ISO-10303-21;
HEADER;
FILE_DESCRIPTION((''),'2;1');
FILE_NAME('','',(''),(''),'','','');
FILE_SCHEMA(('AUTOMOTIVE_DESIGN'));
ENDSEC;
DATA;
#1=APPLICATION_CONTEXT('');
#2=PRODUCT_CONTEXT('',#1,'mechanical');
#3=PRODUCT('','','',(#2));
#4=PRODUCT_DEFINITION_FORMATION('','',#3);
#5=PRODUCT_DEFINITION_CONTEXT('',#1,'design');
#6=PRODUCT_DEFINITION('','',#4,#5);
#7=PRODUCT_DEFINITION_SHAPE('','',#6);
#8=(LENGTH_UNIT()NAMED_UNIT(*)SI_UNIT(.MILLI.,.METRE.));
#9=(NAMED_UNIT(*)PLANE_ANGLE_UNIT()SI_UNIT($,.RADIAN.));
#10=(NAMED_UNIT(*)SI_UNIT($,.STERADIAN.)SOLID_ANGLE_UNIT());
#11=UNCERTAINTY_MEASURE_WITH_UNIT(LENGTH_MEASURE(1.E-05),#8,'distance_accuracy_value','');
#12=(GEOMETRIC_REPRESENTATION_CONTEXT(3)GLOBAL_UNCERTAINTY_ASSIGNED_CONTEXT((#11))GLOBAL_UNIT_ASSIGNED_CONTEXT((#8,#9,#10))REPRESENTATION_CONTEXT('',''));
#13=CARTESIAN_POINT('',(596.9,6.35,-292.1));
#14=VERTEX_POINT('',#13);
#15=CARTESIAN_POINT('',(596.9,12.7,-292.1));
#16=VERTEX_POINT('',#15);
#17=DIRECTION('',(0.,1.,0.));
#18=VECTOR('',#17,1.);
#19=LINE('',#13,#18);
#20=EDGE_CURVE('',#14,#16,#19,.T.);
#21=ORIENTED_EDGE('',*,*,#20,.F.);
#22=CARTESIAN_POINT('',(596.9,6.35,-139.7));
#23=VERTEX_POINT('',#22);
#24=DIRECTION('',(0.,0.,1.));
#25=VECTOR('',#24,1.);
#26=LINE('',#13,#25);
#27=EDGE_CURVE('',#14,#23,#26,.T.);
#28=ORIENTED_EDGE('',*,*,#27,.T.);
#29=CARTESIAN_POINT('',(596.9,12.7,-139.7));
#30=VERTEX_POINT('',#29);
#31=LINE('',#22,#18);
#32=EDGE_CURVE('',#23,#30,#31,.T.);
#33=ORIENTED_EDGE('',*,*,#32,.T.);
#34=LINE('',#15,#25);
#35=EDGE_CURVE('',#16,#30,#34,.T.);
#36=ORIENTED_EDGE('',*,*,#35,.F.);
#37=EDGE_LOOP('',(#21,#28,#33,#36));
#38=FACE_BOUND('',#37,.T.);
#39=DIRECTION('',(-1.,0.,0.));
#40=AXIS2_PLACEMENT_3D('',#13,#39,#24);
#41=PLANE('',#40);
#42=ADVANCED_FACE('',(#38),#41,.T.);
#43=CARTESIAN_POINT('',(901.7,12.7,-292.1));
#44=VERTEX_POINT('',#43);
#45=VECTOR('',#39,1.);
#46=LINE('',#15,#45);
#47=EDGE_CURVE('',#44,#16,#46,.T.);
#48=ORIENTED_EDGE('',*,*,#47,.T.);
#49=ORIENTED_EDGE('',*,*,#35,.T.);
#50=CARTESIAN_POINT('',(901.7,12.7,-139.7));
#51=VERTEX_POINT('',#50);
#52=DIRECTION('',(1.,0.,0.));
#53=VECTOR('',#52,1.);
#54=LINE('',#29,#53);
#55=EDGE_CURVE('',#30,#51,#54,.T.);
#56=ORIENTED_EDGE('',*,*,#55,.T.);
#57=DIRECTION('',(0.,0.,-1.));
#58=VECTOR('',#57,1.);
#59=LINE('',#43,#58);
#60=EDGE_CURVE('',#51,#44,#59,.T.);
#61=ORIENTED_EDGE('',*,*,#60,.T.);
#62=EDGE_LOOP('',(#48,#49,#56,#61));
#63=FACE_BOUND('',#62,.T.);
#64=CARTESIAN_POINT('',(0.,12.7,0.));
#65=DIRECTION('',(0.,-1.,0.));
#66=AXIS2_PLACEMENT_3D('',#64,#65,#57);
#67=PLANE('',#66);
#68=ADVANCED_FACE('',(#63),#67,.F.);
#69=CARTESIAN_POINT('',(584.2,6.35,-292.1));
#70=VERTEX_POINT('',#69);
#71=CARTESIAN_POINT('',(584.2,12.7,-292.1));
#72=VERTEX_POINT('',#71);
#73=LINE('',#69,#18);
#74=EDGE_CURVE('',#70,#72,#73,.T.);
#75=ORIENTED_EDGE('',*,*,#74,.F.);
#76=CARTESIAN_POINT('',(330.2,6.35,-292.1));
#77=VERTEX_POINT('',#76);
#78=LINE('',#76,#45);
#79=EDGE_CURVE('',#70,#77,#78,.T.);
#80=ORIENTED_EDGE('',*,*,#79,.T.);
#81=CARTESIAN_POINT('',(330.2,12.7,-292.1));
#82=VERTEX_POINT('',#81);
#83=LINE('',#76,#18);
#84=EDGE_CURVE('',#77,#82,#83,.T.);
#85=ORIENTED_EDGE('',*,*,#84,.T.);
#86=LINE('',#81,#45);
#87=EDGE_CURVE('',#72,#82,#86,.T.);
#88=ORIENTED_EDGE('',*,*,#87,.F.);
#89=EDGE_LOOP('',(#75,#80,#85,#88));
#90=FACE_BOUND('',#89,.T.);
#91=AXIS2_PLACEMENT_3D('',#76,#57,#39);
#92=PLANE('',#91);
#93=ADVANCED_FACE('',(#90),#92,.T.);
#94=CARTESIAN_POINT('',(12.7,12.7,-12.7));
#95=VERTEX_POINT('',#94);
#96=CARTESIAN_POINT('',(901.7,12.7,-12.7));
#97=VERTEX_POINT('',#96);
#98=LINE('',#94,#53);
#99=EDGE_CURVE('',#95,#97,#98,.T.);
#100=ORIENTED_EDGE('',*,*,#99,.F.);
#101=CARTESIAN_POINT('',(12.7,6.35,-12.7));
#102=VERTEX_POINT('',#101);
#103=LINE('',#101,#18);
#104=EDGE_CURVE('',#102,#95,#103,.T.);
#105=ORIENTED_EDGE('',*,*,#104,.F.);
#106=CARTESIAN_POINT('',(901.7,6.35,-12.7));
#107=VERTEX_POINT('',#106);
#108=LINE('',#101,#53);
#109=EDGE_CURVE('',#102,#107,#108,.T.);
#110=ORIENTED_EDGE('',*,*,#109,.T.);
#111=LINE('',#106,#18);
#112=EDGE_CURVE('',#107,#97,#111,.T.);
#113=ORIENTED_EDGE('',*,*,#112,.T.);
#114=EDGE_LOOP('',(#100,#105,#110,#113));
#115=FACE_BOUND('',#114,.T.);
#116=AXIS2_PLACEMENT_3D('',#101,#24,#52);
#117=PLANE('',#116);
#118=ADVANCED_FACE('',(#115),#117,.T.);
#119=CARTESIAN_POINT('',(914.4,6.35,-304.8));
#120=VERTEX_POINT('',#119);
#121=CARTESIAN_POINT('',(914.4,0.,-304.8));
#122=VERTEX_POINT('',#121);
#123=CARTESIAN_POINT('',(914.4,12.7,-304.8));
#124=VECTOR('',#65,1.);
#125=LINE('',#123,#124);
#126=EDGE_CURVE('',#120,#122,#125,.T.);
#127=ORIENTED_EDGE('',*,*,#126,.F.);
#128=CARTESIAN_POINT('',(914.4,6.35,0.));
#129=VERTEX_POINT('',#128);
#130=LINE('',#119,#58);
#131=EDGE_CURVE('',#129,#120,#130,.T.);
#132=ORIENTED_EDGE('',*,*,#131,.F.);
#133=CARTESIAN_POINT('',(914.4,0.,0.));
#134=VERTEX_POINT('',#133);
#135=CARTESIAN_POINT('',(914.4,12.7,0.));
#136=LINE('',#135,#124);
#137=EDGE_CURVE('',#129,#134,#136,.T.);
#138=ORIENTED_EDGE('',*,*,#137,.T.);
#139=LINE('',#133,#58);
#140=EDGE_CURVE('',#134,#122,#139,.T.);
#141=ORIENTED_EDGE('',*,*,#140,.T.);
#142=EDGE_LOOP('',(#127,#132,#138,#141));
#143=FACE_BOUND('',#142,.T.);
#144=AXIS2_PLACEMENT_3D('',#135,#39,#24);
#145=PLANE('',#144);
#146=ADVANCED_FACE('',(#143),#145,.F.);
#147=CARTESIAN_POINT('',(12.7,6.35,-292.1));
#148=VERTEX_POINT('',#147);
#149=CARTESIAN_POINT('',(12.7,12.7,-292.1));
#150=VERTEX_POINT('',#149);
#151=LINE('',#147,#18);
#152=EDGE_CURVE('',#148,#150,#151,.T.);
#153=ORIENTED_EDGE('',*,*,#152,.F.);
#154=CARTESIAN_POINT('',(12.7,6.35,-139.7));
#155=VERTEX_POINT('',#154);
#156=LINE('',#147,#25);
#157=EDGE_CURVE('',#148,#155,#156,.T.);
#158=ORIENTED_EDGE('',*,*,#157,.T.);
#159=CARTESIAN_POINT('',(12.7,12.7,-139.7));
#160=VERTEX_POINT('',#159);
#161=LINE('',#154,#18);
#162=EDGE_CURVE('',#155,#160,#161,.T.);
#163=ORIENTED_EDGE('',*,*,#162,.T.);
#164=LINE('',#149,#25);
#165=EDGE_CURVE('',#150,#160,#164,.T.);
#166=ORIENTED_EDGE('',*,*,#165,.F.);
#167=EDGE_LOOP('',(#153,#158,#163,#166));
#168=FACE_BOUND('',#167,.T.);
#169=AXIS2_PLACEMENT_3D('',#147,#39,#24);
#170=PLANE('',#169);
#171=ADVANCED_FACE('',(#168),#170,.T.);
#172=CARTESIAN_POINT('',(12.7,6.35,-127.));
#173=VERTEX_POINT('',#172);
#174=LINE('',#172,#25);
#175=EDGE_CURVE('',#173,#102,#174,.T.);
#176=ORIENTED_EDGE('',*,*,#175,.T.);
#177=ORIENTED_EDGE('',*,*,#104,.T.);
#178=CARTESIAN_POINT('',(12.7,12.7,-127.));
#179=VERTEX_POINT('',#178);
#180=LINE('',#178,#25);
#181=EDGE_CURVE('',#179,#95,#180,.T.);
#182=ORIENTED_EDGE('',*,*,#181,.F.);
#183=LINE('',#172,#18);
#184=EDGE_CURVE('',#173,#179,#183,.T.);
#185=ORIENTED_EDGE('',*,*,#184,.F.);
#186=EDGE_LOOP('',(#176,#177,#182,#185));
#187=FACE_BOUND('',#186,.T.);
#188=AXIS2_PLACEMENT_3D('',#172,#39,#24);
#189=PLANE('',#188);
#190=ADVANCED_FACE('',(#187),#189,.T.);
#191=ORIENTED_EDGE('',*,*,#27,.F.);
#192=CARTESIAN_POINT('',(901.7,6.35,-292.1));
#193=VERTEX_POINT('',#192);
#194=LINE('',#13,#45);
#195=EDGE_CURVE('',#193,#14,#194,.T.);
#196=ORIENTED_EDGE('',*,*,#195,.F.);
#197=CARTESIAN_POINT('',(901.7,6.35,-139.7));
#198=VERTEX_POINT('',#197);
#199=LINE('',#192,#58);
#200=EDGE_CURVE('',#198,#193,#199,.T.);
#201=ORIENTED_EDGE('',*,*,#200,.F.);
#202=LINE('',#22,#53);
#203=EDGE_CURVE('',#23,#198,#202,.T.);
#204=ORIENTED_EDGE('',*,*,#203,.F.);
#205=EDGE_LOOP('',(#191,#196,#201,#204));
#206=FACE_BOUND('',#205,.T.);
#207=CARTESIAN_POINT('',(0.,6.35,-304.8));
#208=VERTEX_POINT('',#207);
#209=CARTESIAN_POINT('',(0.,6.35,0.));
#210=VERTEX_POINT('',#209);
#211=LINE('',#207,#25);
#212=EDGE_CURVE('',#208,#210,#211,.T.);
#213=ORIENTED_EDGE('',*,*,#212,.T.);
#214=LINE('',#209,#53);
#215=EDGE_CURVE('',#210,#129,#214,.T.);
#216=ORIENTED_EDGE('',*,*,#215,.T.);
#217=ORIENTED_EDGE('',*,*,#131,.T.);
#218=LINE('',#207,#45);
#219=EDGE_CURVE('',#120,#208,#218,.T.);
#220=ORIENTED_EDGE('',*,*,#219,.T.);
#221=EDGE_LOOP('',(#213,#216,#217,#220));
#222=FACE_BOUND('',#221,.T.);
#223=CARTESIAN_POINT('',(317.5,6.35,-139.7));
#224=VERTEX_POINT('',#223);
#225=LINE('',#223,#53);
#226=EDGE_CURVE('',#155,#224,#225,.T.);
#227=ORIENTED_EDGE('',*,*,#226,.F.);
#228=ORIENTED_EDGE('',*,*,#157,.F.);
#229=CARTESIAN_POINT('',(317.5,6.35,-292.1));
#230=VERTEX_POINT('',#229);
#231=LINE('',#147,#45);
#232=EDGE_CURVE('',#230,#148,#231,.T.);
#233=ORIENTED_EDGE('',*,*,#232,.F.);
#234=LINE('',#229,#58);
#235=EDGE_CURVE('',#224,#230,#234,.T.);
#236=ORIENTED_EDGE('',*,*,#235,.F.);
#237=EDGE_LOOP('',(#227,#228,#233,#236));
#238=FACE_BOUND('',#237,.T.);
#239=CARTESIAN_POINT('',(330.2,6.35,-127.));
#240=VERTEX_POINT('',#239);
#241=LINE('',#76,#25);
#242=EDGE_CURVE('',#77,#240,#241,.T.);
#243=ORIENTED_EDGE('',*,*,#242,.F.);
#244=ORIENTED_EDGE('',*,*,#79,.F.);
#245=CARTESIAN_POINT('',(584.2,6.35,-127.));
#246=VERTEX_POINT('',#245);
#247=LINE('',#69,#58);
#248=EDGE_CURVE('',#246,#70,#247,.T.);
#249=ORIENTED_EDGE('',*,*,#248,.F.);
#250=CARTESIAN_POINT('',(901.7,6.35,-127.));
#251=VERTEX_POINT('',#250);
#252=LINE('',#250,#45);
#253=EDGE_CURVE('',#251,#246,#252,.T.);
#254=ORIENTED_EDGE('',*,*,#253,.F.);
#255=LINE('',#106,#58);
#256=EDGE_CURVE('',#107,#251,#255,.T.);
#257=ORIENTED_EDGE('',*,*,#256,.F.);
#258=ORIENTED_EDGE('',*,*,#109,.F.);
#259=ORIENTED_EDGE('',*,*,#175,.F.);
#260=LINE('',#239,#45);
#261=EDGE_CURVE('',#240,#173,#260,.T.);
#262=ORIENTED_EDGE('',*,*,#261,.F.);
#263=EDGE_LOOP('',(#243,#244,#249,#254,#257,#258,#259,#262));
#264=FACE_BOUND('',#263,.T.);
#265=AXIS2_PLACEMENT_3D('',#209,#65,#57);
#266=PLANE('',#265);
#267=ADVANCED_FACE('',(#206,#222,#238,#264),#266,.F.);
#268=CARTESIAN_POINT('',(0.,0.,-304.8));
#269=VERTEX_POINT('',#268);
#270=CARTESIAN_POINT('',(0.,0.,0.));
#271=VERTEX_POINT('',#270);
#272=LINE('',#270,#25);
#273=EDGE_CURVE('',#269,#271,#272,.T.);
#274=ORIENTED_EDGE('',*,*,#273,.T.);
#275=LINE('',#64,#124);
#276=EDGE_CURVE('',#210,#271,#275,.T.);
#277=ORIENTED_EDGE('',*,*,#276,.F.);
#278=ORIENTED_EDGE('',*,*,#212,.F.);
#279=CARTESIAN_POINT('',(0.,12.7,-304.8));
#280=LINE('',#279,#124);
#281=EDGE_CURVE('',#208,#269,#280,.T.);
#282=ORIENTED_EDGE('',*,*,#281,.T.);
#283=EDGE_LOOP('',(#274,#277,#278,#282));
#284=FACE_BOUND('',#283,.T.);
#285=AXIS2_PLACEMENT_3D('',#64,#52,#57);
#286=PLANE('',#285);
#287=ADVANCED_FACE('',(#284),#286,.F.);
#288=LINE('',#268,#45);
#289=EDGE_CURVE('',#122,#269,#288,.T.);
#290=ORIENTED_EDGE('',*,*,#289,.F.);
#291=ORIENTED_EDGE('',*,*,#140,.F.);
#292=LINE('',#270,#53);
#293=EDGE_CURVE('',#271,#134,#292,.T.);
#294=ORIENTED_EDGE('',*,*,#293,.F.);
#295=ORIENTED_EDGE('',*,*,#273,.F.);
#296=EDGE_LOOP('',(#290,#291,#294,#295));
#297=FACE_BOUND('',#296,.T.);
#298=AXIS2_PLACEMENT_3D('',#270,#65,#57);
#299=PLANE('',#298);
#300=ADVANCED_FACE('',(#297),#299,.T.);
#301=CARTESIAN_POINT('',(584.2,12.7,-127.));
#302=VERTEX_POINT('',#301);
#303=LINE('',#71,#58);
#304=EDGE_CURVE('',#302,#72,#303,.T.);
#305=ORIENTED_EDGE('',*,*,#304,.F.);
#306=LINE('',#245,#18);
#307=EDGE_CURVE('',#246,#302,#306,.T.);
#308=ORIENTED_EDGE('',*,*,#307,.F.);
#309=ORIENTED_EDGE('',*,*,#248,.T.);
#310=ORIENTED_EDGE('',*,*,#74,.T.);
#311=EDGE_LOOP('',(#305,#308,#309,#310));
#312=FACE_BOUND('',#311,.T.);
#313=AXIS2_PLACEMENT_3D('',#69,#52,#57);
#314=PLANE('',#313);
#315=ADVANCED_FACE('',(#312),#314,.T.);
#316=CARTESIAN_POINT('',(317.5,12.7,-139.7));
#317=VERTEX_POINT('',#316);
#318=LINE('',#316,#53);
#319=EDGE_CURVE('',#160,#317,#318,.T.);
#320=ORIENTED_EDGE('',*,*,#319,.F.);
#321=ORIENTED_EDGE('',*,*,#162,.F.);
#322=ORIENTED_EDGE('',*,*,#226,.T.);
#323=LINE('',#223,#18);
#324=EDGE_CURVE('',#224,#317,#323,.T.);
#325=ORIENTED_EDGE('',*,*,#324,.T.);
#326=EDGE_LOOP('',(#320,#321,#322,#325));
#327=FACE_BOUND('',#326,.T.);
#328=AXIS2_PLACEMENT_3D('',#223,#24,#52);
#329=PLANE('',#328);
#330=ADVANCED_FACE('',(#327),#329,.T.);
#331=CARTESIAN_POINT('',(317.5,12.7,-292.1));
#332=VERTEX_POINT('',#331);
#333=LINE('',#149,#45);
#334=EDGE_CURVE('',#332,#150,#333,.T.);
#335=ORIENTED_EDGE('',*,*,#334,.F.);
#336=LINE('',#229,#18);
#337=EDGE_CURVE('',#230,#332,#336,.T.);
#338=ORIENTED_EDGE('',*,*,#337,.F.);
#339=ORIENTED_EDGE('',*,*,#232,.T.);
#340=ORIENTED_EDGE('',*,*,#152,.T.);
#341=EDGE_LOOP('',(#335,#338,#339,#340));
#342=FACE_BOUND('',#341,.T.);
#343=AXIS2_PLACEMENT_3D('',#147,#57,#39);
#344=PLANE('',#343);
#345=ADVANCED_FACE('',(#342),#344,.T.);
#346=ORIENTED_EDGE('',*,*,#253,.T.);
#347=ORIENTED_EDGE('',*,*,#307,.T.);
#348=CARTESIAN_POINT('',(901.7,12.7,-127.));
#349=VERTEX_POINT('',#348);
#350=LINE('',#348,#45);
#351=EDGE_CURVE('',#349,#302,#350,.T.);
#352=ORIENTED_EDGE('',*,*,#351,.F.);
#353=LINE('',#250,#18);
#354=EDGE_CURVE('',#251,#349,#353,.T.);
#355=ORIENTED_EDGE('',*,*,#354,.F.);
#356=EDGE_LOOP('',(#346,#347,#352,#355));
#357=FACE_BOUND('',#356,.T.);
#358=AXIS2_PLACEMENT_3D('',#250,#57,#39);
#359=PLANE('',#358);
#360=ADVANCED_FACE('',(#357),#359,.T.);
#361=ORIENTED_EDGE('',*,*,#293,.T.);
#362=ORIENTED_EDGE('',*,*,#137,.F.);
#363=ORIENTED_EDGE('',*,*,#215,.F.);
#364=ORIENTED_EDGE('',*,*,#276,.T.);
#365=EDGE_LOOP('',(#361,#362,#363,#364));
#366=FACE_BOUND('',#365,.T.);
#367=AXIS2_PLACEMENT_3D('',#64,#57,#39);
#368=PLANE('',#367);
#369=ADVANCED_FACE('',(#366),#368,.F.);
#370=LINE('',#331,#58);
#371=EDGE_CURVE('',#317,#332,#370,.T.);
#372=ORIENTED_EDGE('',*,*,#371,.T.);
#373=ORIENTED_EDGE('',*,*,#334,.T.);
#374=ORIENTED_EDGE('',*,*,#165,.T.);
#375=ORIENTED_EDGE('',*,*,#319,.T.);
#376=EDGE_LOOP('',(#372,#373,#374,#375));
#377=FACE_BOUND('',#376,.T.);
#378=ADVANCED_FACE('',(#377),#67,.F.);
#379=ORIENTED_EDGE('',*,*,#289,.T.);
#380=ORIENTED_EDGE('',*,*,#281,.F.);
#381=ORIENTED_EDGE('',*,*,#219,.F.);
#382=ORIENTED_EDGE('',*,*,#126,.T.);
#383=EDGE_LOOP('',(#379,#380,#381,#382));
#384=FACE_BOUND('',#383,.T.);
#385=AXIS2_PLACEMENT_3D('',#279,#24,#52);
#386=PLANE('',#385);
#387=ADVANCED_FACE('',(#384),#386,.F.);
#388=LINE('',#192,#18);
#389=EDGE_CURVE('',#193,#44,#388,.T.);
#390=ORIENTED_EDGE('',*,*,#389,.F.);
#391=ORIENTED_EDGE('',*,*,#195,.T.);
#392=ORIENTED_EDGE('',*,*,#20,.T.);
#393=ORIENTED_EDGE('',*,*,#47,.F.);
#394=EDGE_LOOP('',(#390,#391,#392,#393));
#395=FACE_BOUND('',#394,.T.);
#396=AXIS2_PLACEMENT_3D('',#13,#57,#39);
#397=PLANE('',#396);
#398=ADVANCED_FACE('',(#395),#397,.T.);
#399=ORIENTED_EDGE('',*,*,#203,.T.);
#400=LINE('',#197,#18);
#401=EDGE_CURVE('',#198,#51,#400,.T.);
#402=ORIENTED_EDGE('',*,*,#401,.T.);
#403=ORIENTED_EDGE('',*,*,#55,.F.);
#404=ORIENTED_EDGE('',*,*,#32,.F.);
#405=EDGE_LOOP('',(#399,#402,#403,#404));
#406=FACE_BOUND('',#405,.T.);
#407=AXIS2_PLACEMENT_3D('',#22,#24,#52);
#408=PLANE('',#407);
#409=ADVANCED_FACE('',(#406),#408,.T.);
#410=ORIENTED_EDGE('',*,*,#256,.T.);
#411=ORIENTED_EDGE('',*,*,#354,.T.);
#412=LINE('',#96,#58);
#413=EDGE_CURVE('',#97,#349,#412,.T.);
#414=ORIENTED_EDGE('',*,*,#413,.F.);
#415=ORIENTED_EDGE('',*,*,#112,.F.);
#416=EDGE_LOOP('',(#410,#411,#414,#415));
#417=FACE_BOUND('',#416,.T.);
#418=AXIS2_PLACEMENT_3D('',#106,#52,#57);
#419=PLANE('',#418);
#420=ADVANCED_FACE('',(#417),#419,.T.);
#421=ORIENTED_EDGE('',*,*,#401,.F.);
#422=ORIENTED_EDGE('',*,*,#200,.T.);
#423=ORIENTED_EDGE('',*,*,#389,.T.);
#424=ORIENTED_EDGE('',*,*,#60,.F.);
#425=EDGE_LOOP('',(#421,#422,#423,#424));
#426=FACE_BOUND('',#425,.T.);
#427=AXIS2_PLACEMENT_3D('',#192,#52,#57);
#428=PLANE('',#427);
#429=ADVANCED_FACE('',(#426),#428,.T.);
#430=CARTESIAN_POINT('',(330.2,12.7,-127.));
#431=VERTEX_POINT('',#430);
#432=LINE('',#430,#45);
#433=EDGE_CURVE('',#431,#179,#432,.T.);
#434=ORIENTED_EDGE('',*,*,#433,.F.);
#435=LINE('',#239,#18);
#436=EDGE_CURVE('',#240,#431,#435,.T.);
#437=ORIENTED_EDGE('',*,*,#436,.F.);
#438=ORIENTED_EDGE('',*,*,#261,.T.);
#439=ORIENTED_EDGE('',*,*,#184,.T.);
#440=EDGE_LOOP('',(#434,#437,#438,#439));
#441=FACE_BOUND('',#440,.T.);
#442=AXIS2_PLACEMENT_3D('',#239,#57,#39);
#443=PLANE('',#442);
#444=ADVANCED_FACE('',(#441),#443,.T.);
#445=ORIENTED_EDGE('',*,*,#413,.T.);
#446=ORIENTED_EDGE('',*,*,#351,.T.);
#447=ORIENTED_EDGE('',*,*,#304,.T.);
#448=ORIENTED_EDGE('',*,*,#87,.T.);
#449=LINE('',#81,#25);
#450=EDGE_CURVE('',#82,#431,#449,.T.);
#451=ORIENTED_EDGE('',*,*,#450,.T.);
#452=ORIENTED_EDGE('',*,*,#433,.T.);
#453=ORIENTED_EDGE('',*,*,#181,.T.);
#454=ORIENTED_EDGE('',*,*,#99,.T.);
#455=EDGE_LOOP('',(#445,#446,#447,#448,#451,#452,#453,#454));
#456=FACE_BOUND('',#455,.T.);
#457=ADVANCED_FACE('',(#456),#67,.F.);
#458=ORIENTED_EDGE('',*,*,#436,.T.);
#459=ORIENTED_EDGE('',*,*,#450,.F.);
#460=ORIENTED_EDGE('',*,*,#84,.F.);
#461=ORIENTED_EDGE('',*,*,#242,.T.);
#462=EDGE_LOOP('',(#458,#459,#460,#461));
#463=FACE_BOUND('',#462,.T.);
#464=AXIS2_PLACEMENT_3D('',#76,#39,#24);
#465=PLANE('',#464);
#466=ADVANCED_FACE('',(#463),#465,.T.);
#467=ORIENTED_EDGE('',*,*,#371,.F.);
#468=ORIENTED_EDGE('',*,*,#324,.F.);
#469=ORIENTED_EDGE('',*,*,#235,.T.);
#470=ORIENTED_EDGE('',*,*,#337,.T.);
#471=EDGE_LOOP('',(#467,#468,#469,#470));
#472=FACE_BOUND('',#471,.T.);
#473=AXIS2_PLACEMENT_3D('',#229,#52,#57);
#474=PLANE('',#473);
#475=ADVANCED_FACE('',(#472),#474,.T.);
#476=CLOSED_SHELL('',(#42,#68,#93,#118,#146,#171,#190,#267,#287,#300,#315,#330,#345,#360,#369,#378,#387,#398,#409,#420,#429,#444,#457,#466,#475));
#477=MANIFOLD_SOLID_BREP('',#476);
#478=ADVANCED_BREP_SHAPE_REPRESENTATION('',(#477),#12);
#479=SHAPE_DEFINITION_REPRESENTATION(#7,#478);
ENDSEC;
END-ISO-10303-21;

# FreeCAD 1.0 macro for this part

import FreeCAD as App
import Part
import Sketcher

V = App.Vector
Q = App.Units.Quantity


def add_polygon(sketch, points):
    """Adds a closed chain of lines whose ends are joined by coincident constraints."""
    first, n = sketch.GeometryCount, len(points)
    for a, b in zip(points, points[1:] + points[:1]):
        sketch.addGeometry(Part.LineSegment(App.Vector(*a, 0), App.Vector(*b, 0)), False)
    for i in range(n):
        sketch.addConstraint(Sketcher.Constraint("Coincident", first + i, 2, first + (i + 1) % n, 1))

doc = App.newDocument("Part")
body = doc.addObject("PartDesign::Body", "Body")

# Sketch on XZ plane
sketch1 = body.newObject("Sketcher::SketchObject", "Sketch")
sketch1.AttachmentSupport = (doc.getObject("XZ_Plane"), [""])
sketch1.MapMode = "FlatFace"
add_polygon(sketch1, [(0, -304.8), (0, 0), (914.4, 0), (914.4, -304.8)])  # lines 0-3
sketch1.addConstraint(Sketcher.Constraint("Vertical", 0))
sketch1.addConstraint(Sketcher.Constraint("Horizontal", 1))
sketch1.addConstraint(Sketcher.Constraint("Vertical", 2))
sketch1.addConstraint(Sketcher.Constraint("Horizontal", 3))
sketch1.addConstraint(Sketcher.Constraint("Coincident", 0, 2, -1, 1))
sketch1.addConstraint(Sketcher.Constraint("DistanceX", 1, 1, 1, 2, Q("36 in")))
sketch1.addConstraint(Sketcher.Constraint("DistanceY", 0, 1, 0, 2, Q("12 in")))
pad1 = body.newObject("PartDesign::Pad", "Pad")
pad1.Profile = sketch1
pad1.Length = Q("0.5 in")
pad1.Reversed = True

# Sketch on XZ plane
sketch2 = body.newObject("Sketcher::SketchObject", "Sketch001")
sketch2.AttachmentSupport = (doc.getObject("XZ_Plane"), [""])
sketch2.MapMode = "FlatFace"
sketch2.AttachmentOffset = App.Placement(V(0, 0, -0.5 * 25.4), App.Rotation())
add_polygon(sketch2, [(0, -304.8), (0, 0), (914.4, 0), (914.4, -304.8)])  # lines 0-3
add_polygon(sketch2, [(317.5, -139.7), (12.7, -139.7), (12.7, -292.1), (317.5, -292.1)])  # lines 4-7
add_polygon(sketch2, [(12.7, -127), (330.2, -127), (330.2, -292.1), (584.2, -292.1), (584.2, -127), (901.7, -127), (901.7, -12.7), (12.7, -12.7)])  # lines 8-15
add_polygon(sketch2, [(901.7, -139.7), (596.9, -139.7), (596.9, -292.1), (901.7, -292.1)])  # lines 16-19
sketch2.addConstraint(Sketcher.Constraint("Vertical", 0))
sketch2.addConstraint(Sketcher.Constraint("Horizontal", 1))
sketch2.addConstraint(Sketcher.Constraint("Vertical", 2))
sketch2.addConstraint(Sketcher.Constraint("Horizontal", 3))
sketch2.addConstraint(Sketcher.Constraint("Horizontal", 4))
sketch2.addConstraint(Sketcher.Constraint("Vertical", 5))
sketch2.addConstraint(Sketcher.Constraint("Horizontal", 6))
sketch2.addConstraint(Sketcher.Constraint("Vertical", 7))
sketch2.addConstraint(Sketcher.Constraint("Horizontal", 8))
sketch2.addConstraint(Sketcher.Constraint("Vertical", 9))
sketch2.addConstraint(Sketcher.Constraint("Horizontal", 10))
sketch2.addConstraint(Sketcher.Constraint("Vertical", 11))
sketch2.addConstraint(Sketcher.Constraint("Horizontal", 12))
sketch2.addConstraint(Sketcher.Constraint("Vertical", 13))
sketch2.addConstraint(Sketcher.Constraint("Horizontal", 14))
sketch2.addConstraint(Sketcher.Constraint("Vertical", 15))
sketch2.addConstraint(Sketcher.Constraint("Horizontal", 16))
sketch2.addConstraint(Sketcher.Constraint("Vertical", 17))
sketch2.addConstraint(Sketcher.Constraint("Horizontal", 18))
sketch2.addConstraint(Sketcher.Constraint("Vertical", 19))
sketch2.addConstraint(Sketcher.Constraint("Coincident", 0, 2, -1, 1))
sketch2.addConstraint(Sketcher.Constraint("Horizontal", 6, 2, 9, 2))
sketch2.addConstraint(Sketcher.Constraint("Horizontal", 8, 2, 11, 2))
sketch2.addConstraint(Sketcher.Constraint("Horizontal", 7, 2, 16, 2))
sketch2.addConstraint(Sketcher.Constraint("Horizontal", 10, 2, 17, 2))
sketch2.addConstraint(Sketcher.Constraint("Vertical", 5, 2, 14, 2))
sketch2.addConstraint(Sketcher.Constraint("Vertical", 13, 2, 18, 2))
sketch2.addConstraint(Sketcher.Constraint("Equal", 8, 12))
sketch2.addConstraint(Sketcher.Constraint("Equal", 6, 16))
sketch2.addConstraint(Sketcher.Constraint("Equal", 18, 0))
sketch2.addConstraint(Sketcher.Constraint("DistanceX", 1, 1, 1, 2, Q("36 in")))
sketch2.addConstraint(Sketcher.Constraint("DistanceX", 4, 2, 4, 1, Q("12 in")))
sketch2.addConstraint(Sketcher.Constraint("DistanceX", 10, 1, 10, 2, Q("10 in")))
sketch2.addConstraint(Sketcher.Constraint("DistanceX", 14, 2, 14, 1, Q("35 in")))
sketch2.addConstraint(Sketcher.Constraint("DistanceY", 5, 2, 5, 1, Q("6 in")))
sketch2.addConstraint(Sketcher.Constraint("DistanceY", 9, 2, 9, 1, Q("6.5 in")))
sketch2.addConstraint(Sketcher.Constraint("DistanceY", 13, 1, 13, 2, Q("4.5 in")))
sketch2.addConstraint(Sketcher.Constraint("DistanceX", -1, 1, 8, 2, Q("13 in")))
sketch2.addConstraint(Sketcher.Constraint("DistanceY", 8, 2, -1, 1, Q("5 in")))
pocket1 = body.newObject("PartDesign::Pocket", "Pocket")
pocket1.Profile = sketch2
pocket1.Length = Q("0.25 in")
pocket1.Reversed = True

doc.recompute()
